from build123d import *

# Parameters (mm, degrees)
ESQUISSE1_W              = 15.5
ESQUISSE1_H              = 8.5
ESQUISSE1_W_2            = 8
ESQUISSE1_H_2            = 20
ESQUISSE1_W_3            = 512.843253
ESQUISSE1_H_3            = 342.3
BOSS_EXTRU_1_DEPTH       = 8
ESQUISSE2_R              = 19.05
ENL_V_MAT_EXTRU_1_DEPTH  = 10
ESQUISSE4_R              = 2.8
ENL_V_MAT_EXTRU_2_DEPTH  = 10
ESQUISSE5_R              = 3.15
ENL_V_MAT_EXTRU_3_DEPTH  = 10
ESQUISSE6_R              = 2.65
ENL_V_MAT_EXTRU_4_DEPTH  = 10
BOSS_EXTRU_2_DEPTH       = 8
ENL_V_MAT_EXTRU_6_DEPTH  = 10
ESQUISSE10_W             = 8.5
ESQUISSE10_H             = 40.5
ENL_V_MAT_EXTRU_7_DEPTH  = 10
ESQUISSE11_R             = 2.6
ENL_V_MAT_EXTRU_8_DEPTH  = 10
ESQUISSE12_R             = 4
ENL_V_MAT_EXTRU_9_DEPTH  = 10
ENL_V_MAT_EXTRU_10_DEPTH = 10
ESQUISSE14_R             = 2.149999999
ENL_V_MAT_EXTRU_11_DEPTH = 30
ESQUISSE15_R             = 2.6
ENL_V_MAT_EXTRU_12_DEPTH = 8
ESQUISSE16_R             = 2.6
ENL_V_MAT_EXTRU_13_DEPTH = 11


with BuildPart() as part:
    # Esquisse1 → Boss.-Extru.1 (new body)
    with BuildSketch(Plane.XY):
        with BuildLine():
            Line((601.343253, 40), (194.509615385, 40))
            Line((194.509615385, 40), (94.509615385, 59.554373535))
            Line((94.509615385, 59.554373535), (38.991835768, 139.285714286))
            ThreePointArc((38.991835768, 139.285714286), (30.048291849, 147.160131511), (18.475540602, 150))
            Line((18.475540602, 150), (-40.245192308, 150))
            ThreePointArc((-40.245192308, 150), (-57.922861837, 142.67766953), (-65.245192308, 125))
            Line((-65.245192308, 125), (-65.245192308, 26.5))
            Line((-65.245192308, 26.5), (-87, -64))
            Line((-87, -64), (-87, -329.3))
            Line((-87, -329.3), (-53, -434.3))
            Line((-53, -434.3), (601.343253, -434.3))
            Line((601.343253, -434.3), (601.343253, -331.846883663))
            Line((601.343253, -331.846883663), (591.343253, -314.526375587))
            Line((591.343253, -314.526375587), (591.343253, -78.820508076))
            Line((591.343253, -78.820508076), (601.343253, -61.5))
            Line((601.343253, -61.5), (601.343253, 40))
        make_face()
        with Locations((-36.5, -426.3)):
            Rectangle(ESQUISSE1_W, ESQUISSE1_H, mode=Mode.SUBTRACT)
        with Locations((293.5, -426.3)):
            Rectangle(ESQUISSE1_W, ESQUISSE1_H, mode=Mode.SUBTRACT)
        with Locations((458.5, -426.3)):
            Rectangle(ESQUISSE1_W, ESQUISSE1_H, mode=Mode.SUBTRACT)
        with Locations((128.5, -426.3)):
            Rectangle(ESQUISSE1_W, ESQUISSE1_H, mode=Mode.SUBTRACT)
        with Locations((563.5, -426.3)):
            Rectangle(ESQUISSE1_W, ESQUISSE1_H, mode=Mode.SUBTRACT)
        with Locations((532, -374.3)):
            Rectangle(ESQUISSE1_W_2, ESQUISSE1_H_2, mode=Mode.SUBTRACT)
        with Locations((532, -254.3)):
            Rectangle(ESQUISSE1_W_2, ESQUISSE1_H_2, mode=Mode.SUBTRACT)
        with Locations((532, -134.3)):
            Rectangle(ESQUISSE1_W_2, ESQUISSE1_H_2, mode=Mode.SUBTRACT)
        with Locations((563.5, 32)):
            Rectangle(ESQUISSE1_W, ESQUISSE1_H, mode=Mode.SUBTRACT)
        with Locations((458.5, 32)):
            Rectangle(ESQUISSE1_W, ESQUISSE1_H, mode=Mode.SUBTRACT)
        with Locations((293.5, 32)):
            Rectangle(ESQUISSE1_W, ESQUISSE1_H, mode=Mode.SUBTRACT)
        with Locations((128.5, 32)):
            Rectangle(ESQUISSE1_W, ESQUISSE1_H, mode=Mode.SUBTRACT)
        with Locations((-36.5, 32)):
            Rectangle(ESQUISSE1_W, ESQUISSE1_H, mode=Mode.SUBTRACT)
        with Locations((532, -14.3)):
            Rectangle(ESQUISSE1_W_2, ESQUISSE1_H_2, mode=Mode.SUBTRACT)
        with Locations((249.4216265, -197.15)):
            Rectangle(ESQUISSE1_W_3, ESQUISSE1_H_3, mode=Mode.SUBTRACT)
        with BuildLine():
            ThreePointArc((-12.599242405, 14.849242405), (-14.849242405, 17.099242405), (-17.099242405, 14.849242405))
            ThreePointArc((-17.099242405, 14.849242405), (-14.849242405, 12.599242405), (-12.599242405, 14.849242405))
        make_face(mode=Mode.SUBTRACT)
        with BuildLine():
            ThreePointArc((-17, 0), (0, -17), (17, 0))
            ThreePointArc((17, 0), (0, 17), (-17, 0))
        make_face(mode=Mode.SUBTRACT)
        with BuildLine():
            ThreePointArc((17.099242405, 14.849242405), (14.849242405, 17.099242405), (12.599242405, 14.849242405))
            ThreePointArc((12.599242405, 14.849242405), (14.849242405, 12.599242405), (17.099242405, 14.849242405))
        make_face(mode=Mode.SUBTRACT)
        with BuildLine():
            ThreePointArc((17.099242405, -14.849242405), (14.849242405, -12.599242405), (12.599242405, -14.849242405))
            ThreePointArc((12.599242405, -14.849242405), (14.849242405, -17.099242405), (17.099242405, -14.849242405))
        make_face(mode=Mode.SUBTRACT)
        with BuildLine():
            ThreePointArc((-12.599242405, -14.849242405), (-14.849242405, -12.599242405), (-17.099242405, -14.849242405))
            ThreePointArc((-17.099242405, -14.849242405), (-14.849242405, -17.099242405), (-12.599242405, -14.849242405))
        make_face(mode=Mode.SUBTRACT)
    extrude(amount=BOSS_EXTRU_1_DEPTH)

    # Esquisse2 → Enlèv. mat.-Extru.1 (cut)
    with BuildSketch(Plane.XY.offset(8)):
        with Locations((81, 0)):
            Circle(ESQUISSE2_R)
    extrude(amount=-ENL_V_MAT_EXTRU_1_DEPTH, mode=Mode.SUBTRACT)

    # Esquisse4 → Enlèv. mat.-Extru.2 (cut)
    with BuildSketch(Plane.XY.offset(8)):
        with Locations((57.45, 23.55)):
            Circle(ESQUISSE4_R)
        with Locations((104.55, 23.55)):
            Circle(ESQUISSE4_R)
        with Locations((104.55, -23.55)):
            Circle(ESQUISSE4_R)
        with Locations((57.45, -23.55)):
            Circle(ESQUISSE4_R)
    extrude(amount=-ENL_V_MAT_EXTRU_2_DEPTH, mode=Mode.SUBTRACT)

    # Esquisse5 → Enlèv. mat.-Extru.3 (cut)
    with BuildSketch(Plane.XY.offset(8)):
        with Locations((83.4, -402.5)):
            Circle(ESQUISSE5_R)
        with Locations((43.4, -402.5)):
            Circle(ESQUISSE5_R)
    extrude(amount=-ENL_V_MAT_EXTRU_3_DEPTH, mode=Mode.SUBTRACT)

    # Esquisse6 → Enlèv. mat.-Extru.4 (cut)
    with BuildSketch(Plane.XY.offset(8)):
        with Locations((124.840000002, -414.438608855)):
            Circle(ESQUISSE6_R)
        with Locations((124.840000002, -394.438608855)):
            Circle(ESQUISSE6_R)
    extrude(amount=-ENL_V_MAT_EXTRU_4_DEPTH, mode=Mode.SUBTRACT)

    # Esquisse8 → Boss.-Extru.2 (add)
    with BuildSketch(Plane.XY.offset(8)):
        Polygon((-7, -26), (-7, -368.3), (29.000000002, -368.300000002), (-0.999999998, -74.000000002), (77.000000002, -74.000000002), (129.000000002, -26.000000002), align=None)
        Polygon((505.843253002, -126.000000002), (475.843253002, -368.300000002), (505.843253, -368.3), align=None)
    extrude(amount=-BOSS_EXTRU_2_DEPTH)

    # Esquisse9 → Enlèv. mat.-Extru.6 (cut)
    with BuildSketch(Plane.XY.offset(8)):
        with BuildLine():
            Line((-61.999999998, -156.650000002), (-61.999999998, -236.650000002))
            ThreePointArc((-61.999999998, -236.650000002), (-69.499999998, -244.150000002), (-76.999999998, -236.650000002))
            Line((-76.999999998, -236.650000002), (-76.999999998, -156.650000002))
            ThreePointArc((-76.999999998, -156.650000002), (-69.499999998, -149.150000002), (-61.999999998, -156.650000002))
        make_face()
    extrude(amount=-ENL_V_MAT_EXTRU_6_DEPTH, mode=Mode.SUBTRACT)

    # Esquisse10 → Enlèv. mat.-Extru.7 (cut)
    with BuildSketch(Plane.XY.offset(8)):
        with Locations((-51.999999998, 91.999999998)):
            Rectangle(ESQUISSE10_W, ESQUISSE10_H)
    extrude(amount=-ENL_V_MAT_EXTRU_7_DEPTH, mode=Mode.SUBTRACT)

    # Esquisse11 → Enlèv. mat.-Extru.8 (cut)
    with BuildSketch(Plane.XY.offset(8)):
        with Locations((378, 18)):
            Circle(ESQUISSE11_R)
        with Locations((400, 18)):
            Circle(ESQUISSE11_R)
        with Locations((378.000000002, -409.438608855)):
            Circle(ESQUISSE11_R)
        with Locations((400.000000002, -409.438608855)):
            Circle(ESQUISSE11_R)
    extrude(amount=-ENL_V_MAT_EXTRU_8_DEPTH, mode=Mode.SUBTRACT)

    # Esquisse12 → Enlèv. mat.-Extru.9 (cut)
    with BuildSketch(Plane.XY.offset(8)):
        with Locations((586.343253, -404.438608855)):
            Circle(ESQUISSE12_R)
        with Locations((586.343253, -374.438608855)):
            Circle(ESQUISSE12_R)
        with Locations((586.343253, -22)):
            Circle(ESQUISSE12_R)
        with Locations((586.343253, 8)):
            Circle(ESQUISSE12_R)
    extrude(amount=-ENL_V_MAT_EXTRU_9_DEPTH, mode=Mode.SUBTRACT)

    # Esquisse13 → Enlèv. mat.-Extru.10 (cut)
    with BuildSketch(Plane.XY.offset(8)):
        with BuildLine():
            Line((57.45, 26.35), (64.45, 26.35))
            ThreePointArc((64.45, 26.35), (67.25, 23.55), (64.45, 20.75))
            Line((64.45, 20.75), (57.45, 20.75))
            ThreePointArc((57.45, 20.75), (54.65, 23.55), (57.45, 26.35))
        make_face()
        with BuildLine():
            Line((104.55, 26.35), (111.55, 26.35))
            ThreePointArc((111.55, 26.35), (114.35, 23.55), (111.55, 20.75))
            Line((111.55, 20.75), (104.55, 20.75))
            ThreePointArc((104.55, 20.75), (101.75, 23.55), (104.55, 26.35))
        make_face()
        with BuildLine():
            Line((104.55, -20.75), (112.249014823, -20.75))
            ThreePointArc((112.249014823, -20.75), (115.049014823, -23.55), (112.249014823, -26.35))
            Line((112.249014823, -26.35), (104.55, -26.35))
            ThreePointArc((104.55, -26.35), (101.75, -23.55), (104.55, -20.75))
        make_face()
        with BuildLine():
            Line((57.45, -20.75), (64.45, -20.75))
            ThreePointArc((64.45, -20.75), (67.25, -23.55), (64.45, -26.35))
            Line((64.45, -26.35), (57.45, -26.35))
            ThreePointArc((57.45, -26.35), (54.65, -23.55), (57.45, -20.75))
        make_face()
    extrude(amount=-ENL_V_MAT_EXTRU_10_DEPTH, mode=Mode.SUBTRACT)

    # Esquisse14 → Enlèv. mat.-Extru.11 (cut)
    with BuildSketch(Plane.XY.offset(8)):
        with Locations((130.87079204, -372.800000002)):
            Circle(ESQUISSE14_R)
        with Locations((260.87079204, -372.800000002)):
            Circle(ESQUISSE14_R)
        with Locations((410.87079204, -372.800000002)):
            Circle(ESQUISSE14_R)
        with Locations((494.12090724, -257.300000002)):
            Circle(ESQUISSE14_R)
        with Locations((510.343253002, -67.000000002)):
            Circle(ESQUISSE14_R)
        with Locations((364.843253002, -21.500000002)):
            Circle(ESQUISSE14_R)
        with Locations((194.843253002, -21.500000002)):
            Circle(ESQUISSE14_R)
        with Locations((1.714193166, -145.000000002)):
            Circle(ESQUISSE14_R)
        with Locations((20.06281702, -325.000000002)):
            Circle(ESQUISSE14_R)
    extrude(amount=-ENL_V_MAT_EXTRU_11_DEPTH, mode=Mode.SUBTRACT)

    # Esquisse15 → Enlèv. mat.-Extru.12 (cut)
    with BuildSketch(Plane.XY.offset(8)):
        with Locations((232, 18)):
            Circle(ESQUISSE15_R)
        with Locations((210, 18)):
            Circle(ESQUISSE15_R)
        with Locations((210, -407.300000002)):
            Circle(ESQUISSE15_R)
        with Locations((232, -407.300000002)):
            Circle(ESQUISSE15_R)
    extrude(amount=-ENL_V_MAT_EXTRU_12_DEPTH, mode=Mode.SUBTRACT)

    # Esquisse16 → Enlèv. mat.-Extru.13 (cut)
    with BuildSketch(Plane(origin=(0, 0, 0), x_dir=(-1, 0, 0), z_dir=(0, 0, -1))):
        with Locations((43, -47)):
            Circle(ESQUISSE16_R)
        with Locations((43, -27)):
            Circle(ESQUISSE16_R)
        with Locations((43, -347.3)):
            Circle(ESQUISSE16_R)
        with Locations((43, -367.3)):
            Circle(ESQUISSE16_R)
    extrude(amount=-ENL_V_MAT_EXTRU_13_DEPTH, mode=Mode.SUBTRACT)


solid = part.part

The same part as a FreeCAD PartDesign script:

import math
import FreeCAD as App
import Part
import Sketcher
from FreeCAD import Vector
Q = App.Units.Quantity


def add_polygon(sketch, points):
    """Adds a closed chain of lines whose ends are joined by coincident constraints."""
    first, n = sketch.GeometryCount, len(points)
    for a, b in zip(points, points[1:] + points[:1]):
        sketch.addGeometry(Part.LineSegment(App.Vector(*a, 0), App.Vector(*b, 0)), False)
    for i in range(n):
        sketch.addConstraint(Sketcher.Constraint("Coincident", first + i, 2, first + (i + 1) % n, 1))

doc = App.newDocument("Part")
body = doc.addObject("PartDesign::Body", "Body")

sketch1 = doc.addObject("Sketcher::SketchObject", "Sketch")
body.addObject(sketch1)
sketch1.AttachmentSupport = (doc.XY_Plane, [""])
sketch1.MapMode = "FlatFace"
sketch1.addGeometry(Part.LineSegment(Vector(601.343253, 40, 0), Vector(194.509615, 40, 0)), False)
sketch1.addGeometry(Part.LineSegment(Vector(194.509615, 40, 0), Vector(94.509615, 59.554374, 0)), False)
sketch1.addGeometry(Part.LineSegment(Vector(94.509615, 59.554374, 0), Vector(38.991836, 139.285714, 0)), False)
sketch1.addGeometry(Part.ArcOfCircle(Part.Circle(Vector(18.475541, 125, 0), Vector(0, 0, 1), 25), math.radians(34.849905), math.radians(90)), False)
sketch1.addGeometry(Part.LineSegment(Vector(18.475541, 150, 0), Vector(-40.245192, 150, 0)), False)
sketch1.addGeometry(Part.ArcOfCircle(Part.Circle(Vector(-40.245192, 125, 0), Vector(0, 0, 1), 25), math.radians(90), math.radians(180)), False)
sketch1.addGeometry(Part.LineSegment(Vector(-65.245192, 125, 0), Vector(-65.245192, 26.5, 0)), False)
sketch1.addGeometry(Part.LineSegment(Vector(-65.245192, 26.5, 0), Vector(-87, -64, 0)), False)
sketch1.addGeometry(Part.LineSegment(Vector(-87, -64, 0), Vector(-87, -329.3, 0)), False)
sketch1.addGeometry(Part.LineSegment(Vector(-87, -329.3, 0), Vector(-53, -434.3, 0)), False)
sketch1.addGeometry(Part.LineSegment(Vector(-53, -434.3, 0), Vector(601.343253, -434.3, 0)), False)
sketch1.addGeometry(Part.LineSegment(Vector(601.343253, -434.3, 0), Vector(601.343253, -331.846884, 0)), False)
sketch1.addGeometry(Part.LineSegment(Vector(601.343253, -331.846884, 0), Vector(591.343253, -314.526376, 0)), False)
sketch1.addGeometry(Part.LineSegment(Vector(591.343253, -314.526376, 0), Vector(591.343253, -78.820508, 0)), False)
sketch1.addGeometry(Part.LineSegment(Vector(591.343253, -78.820508, 0), Vector(601.343253, -61.5, 0)), False)
sketch1.addGeometry(Part.LineSegment(Vector(601.343253, -61.5, 0), Vector(601.343253, 40, 0)), False)
add_polygon(sketch1, [(-28.75, -430.55), (-44.25, -430.55), (-44.25, -422.05), (-28.75, -422.05)])
add_polygon(sketch1, [(136.25, -430.55), (120.75, -430.55), (120.75, -422.05), (136.25, -422.05)])
add_polygon(sketch1, [(301.25, -430.55), (285.75, -430.55), (285.75, -422.05), (301.25, -422.05)])
add_polygon(sketch1, [(466.25, -430.55), (450.75, -430.55), (450.75, -422.05), (466.25, -422.05)])
add_polygon(sketch1, [(571.25, -430.55), (555.75, -430.55), (555.75, -422.05), (571.25, -422.05)])
add_polygon(sketch1, [(536, -384.3), (528, -384.3), (528, -364.3), (536, -364.3)])
add_polygon(sketch1, [(536, -264.3), (528, -264.3), (528, -244.3), (536, -244.3)])
add_polygon(sketch1, [(505.843253, -368.3), (-7, -368.3), (-7, -26), (505.843253, -26)])
sketch1.addGeometry(Part.Circle(Vector(-14.849242, -14.849242, 0), Vector(0, 0, 1), 2.25), False)
sketch1.addGeometry(Part.Circle(Vector(14.849242, -14.849242, 0), Vector(0, 0, 1), 2.25), False)
sketch1.addGeometry(Part.Circle(Vector(0, 0, 0), Vector(0, 0, 1), 17), False)
sketch1.addGeometry(Part.Circle(Vector(-14.849242, 14.849242, 0), Vector(0, 0, 1), 2.25), False)
add_polygon(sketch1, [(-28.75, 27.75), (-44.25, 27.75), (-44.25, 36.25), (-28.75, 36.25)])
sketch1.addGeometry(Part.Circle(Vector(14.849242, 14.849242, 0), Vector(0, 0, 1), 2.25), False)
add_polygon(sketch1, [(136.25, 27.75), (120.75, 27.75), (120.75, 36.25), (136.25, 36.25)])
add_polygon(sketch1, [(536, -144.3), (528, -144.3), (528, -124.3), (536, -124.3)])
add_polygon(sketch1, [(301.25, 27.75), (285.75, 27.75), (285.75, 36.25), (301.25, 36.25)])
add_polygon(sketch1, [(466.25, 27.75), (450.75, 27.75), (450.75, 36.25), (466.25, 36.25)])
add_polygon(sketch1, [(536, -24.3), (528, -24.3), (528, -4.3), (536, -4.3)])
add_polygon(sketch1, [(571.25, 27.75), (555.75, 27.75), (555.75, 36.25), (571.25, 36.25)])
sketch1.addConstraint([
    Sketcher.Constraint("Coincident", 0, 2, 1, 1),
    Sketcher.Constraint("Coincident", 1, 2, 2, 1),
    Sketcher.Constraint("Tangent", 2, 2, 3, 1),
    Sketcher.Constraint("Tangent", 3, 2, 4, 1),
    Sketcher.Constraint("Tangent", 4, 2, 5, 1),
    Sketcher.Constraint("Tangent", 5, 2, 6, 1),
    Sketcher.Constraint("Coincident", 6, 2, 7, 1),
    Sketcher.Constraint("Coincident", 7, 2, 8, 1),
    Sketcher.Constraint("Coincident", 8, 2, 9, 1),
    Sketcher.Constraint("Coincident", 9, 2, 10, 1),
    Sketcher.Constraint("Coincident", 10, 2, 11, 1),
    Sketcher.Constraint("Coincident", 11, 2, 12, 1),
    Sketcher.Constraint("Coincident", 12, 2, 13, 1),
    Sketcher.Constraint("Coincident", 13, 2, 14, 1),
    Sketcher.Constraint("Coincident", 14, 2, 15, 1),
    Sketcher.Constraint("Coincident", 15, 2, 0, 1),
    Sketcher.Constraint("Horizontal", 0),
    Sketcher.Constraint("Horizontal", 4),
    Sketcher.Constraint("Vertical", 6),
    Sketcher.Constraint("Vertical", 8),
    Sketcher.Constraint("Horizontal", 10),
    Sketcher.Constraint("Vertical", 11),
    Sketcher.Constraint("Vertical", 13),
    Sketcher.Constraint("Vertical", 15),
    Sketcher.Constraint("Horizontal", 16),
    Sketcher.Constraint("Vertical", 17),
    Sketcher.Constraint("Horizontal", 18),
    Sketcher.Constraint("Vertical", 19),
    Sketcher.Constraint("Horizontal", 20),
    Sketcher.Constraint("Vertical", 21),
    Sketcher.Constraint("Horizontal", 22),
    Sketcher.Constraint("Vertical", 23),
    Sketcher.Constraint("Horizontal", 24),
    Sketcher.Constraint("Vertical", 25),
    Sketcher.Constraint("Horizontal", 26),
    Sketcher.Constraint("Vertical", 27),
    Sketcher.Constraint("Horizontal", 28),
    Sketcher.Constraint("Vertical", 29),
    Sketcher.Constraint("Horizontal", 30),
    Sketcher.Constraint("Vertical", 31),
    Sketcher.Constraint("Horizontal", 32),
    Sketcher.Constraint("Vertical", 33),
    Sketcher.Constraint("Horizontal", 34),
    Sketcher.Constraint("Vertical", 35),
    Sketcher.Constraint("Horizontal", 36),
    Sketcher.Constraint("Vertical", 37),
    Sketcher.Constraint("Horizontal", 38),
    Sketcher.Constraint("Vertical", 39),
    Sketcher.Constraint("Horizontal", 40),
    Sketcher.Constraint("Vertical", 41),
    Sketcher.Constraint("Horizontal", 42),
    Sketcher.Constraint("Vertical", 43),
    Sketcher.Constraint("Horizontal", 44),
    Sketcher.Constraint("Vertical", 45),
    Sketcher.Constraint("Horizontal", 46),
    Sketcher.Constraint("Vertical", 47),
    Sketcher.Constraint("Horizontal", 52),
    Sketcher.Constraint("Vertical", 53),
    Sketcher.Constraint("Horizontal", 54),
    Sketcher.Constraint("Vertical", 55),
    Sketcher.Constraint("Horizontal", 57),
    Sketcher.Constraint("Vertical", 58),
    Sketcher.Constraint("Horizontal", 59),
    Sketcher.Constraint("Vertical", 60),
    Sketcher.Constraint("Horizontal", 61),
    Sketcher.Constraint("Vertical", 62),
    Sketcher.Constraint("Horizontal", 63),
    Sketcher.Constraint("Vertical", 64),
    Sketcher.Constraint("Horizontal", 65),
    Sketcher.Constraint("Vertical", 66),
    Sketcher.Constraint("Horizontal", 67),
    Sketcher.Constraint("Vertical", 68),
    Sketcher.Constraint("Horizontal", 69),
    Sketcher.Constraint("Vertical", 70),
    Sketcher.Constraint("Horizontal", 71),
    Sketcher.Constraint("Vertical", 72),
    Sketcher.Constraint("Horizontal", 73),
    Sketcher.Constraint("Vertical", 74),
    Sketcher.Constraint("Horizontal", 75),
    Sketcher.Constraint("Vertical", 76),
    Sketcher.Constraint("Horizontal", 77),
    Sketcher.Constraint("Vertical", 78),
    Sketcher.Constraint("Horizontal", 79),
    Sketcher.Constraint("Vertical", 80),
    Sketcher.Constraint("Coincident", 50, 3, -1, 1),
    Sketcher.Constraint("Equal", 3, 5),
    Sketcher.Constraint("Equal", 48, 49),
    Sketcher.Constraint("Equal", 49, 51),
    Sketcher.Constraint("Equal", 51, 56),
    Sketcher.Constraint("Symmetric", 49, 3, 51, 3, -1, 1),
    Sketcher.Constraint("Symmetric", 48, 3, 56, 3, -1, 1),
    Sketcher.Constraint("Symmetric", 48, 3, 49, 3, -2),
    Sketcher.Constraint("Horizontal", 19, 2, 20, 2),
    Sketcher.Constraint("Horizontal", 18, 2, 21, 2),
    Sketcher.Constraint("Horizontal", 23, 2, 24, 2),
    Sketcher.Constraint("Horizontal", 22, 2, 25, 2),
    Sketcher.Constraint("Horizontal", 27, 2, 28, 2),
    Sketcher.Constraint("Horizontal", 26, 2, 29, 2),
    Sketcher.Constraint("Horizontal", 31, 2, 32, 2),
    Sketcher.Constraint("Horizontal", 30, 2, 33, 2),
    Sketcher.Constraint("Horizontal", 55, 2, 57, 2),
    Sketcher.Constraint("Horizontal", 54, 2, 58, 2),
    Sketcher.Constraint("Horizontal", 60, 2, 65, 2),
    Sketcher.Constraint("Horizontal", 59, 2, 66, 2),
    Sketcher.Constraint("Horizontal", 68, 2, 69, 2),
    Sketcher.Constraint("Horizontal", 67, 2, 70, 2),
    Sketcher.Constraint("Horizontal", 72, 2, 77, 2),
    Sketcher.Constraint("Horizontal", 71, 2, 78, 2),
    Sketcher.Constraint("Vertical", 11, 2, 14, 2),
    Sketcher.Constraint("Vertical", 37, 2, 40, 2),
    Sketcher.Constraint("Vertical", 39, 2, 42, 2),
    Sketcher.Constraint("Vertical", 17, 2, 52, 2),
    Sketcher.Constraint("Vertical", 19, 2, 54, 2),
    Sketcher.Constraint("Vertical", 21, 2, 57, 2),
    Sketcher.Constraint("Vertical", 23, 2, 59, 2),
    Sketcher.Constraint("Vertical", 41, 2, 61, 2),
    Sketcher.Constraint("Vertical", 43, 2, 63, 2),
    Sketcher.Constraint("Vertical", 25, 2, 65, 2),
    Sketcher.Constraint("Vertical", 27, 2, 67, 2),
    Sketcher.Constraint("Vertical", 29, 2, 69, 2),
    Sketcher.Constraint("Vertical", 31, 2, 71, 2),
    Sketcher.Constraint("Vertical", 62, 2, 73, 2),
    Sketcher.Constraint("Vertical", 64, 2, 75, 2),
    Sketcher.Constraint("Vertical", 33, 2, 77, 2),
    Sketcher.Constraint("Vertical", 35, 2, 79, 2),
    Sketcher.Constraint("Equal", 18, 20),
    Sketcher.Constraint("Equal", 22, 24),
    Sketcher.Constraint("Equal", 26, 28),
    Sketcher.Constraint("Equal", 30, 32),
    Sketcher.Constraint("Equal", 39, 41),
    Sketcher.Constraint("Equal", 35, 53),
    Sketcher.Constraint("Equal", 43, 62),
    Sketcher.Constraint("Equal", 64, 74),
    Sketcher.Constraint("Equal", 12, 14),
    Sketcher.Constraint("Diameter", 50, 34.0),
    Sketcher.Constraint("Radius", 3, 25.0),
    Sketcher.Constraint("Diameter", 48, 4.5),
    Sketcher.Constraint("DistanceX", 36, 2, 36, 1, 8.0),
    Sketcher.Constraint("DistanceY", 37, 1, 37, 2, 20.0),
    Sketcher.Constraint("Angle", 12, Q("120 deg")),
    Sketcher.Constraint("Distance", 12, 20.0),
    Sketcher.Constraint("DistanceX", 16, 2, 16, 1, 15.5),
    Sketcher.Constraint("DistanceY", 6, 2, 6, 1, 98.5),
    Sketcher.Constraint("DistanceY", 8, 2, 8, 1, 265.3),
    Sketcher.Constraint("DistanceY", 15, 1, 15, 2, 101.5),
    Sketcher.Constraint("DistanceY", 17, 1, 17, 2, 8.5),
    Sketcher.Constraint("DistanceY", 45, 1, 45, 2, 342.3),
    Sketcher.Constraint("DistanceY", -1, 1, 3, 3, 125.0),
    Sketcher.Constraint("DistanceY", -1, 1, 0, 2, 40.0),
    Sketcher.Constraint("DistanceX", 7, 2, -1, 1, 87.0),
    Sketcher.Constraint("DistanceY", 7, 2, -1, 1, 64.0),
    Sketcher.Constraint("DistanceX", 9, 2, -1, 1, 53.0),
    Sketcher.Constraint("DistanceX", -1, 1, 36, 2, 528.0),
    Sketcher.Constraint("DistanceX", 44, 2, -1, 1, 7.0),
    Sketcher.Constraint("DistanceY", 45, 2, -1, 1, 26.0),
    Sketcher.Constraint("DistanceY", 9, 2, -1, 1, 434.3),
    Sketcher.Constraint("DistanceY", 36, 2, -1, 1, 384.3),
    Sketcher.Constraint("DistanceY", 40, 2, -1, 1, 264.3),
    Sketcher.Constraint("DistanceY", 61, 2, -1, 1, 144.3),
    Sketcher.Constraint("DistanceY", 73, 2, -1, 1, 24.3),
    Sketcher.Constraint("DistanceX", 16, 2, -1, 1, 44.25),
    Sketcher.Constraint("DistanceY", 16, 2, -1, 1, 430.55),
    Sketcher.Constraint("DistanceX", -1, 1, 20, 2, 120.75),
    Sketcher.Constraint("DistanceX", -1, 1, 24, 2, 285.75),
    Sketcher.Constraint("DistanceX", -1, 1, 28, 2, 450.75),
    Sketcher.Constraint("DistanceX", -1, 1, 32, 2, 555.75),
    Sketcher.Constraint("DistanceY", -1, 1, 52, 2, 27.75),
    Sketcher.Constraint("Distance", 7, 93.078041),
    Sketcher.Constraint("DistanceX", 0, 2, 0, 1, 406.833638),
    Sketcher.Constraint("DistanceX", 4, 2, 4, 1, 58.720733),
    Sketcher.Constraint("DistanceX", 10, 1, 10, 2, 654.343253),
    Sketcher.Constraint("DistanceX", 44, 2, 44, 1, 512.843253),
    Sketcher.Constraint("DistanceY", 11, 1, 11, 2, 102.453116),
    Sketcher.Constraint("Distance", 1, 101.893933),
    Sketcher.Constraint("Distance", 2, 97.156114),
    Sketcher.Constraint("DistanceX", 48, 3, -1, 1, 14.849242),
    Sketcher.Constraint("DistanceY", 48, 3, -1, 1, 14.849242),
])
pad1 = doc.addObject("PartDesign::Pad", "Pad")
body.addObject(pad1)
pad1.Profile = sketch1
pad1.Length = 8

sketch2 = doc.addObject("Sketcher::SketchObject", "Sketch001")
body.addObject(sketch2)
sketch2.AttachmentSupport = (doc.XY_Plane, [""])
sketch2.MapMode = "FlatFace"
sketch2.AttachmentOffset = App.Placement(Vector(0, 0, 8), App.Rotation())
sketch2.addGeometry(Part.Circle(Vector(81, 0, 0), Vector(0, 0, 1), 19.05), False)
sketch2.addConstraint([
    Sketcher.Constraint("PointOnObject", 0, 3, -1),
    Sketcher.Constraint("Diameter", 0, 38.1),
    Sketcher.Constraint("DistanceX", -1, 1, 0, 3, 81.0),
])
pocket1 = doc.addObject("PartDesign::Pocket", "Pocket")
body.addObject(pocket1)
pocket1.Profile = sketch2
pocket1.Length = 10

sketch3 = doc.addObject("Sketcher::SketchObject", "Sketch002")
body.addObject(sketch3)
sketch3.AttachmentSupport = (doc.XY_Plane, [""])
sketch3.MapMode = "FlatFace"
sketch3.AttachmentOffset = App.Placement(Vector(0, 0, 8), App.Rotation())
sketch3.addGeometry([
    Part.Circle(Vector(57.45, 23.55, 0), Vector(0, 0, 1), 2.8),
    Part.Circle(Vector(104.55, 23.55, 0), Vector(0, 0, 1), 2.8),
    Part.Circle(Vector(104.55, -23.55, 0), Vector(0, 0, 1), 2.8),
    Part.Circle(Vector(57.45, -23.55, 0), Vector(0, 0, 1), 2.8),
], False)
sketch3.addConstraint([
    Sketcher.Constraint("Equal", 0, 1),
    Sketcher.Constraint("Equal", 1, 2),
    Sketcher.Constraint("Equal", 2, 3),
    Sketcher.Constraint("Symmetric", 1, 3, 2, 3, -1),
    Sketcher.Constraint("Symmetric", 0, 3, 3, 3, -1),
    Sketcher.Constraint("Horizontal", 0, 3, 1, 3),
    Sketcher.Constraint("Diameter", 0, 5.6),
    Sketcher.Constraint("DistanceX", 0, 3, 1, 3, 47.1),
    Sketcher.Constraint("DistanceY", 2, 3, 1, 3, 47.1),
    Sketcher.Constraint("DistanceX", -1, 1, 0, 3, 57.45),
])
pocket2 = doc.addObject("PartDesign::Pocket", "Pocket001")
body.addObject(pocket2)
pocket2.Profile = sketch3
pocket2.Length = 10

sketch4 = doc.addObject("Sketcher::SketchObject", "Sketch003")
body.addObject(sketch4)
sketch4.AttachmentSupport = (doc.XY_Plane, [""])
sketch4.MapMode = "FlatFace"
sketch4.AttachmentOffset = App.Placement(Vector(0, 0, 8), App.Rotation())
sketch4.addGeometry([
    Part.Circle(Vector(83.4, -402.5, 0), Vector(0, 0, 1), 3.15),
    Part.Circle(Vector(43.4, -402.5, 0), Vector(0, 0, 1), 3.15),
], False)
sketch4.addConstraint([
    Sketcher.Constraint("Equal", 0, 1),
    Sketcher.Constraint("Horizontal", 0, 3, 1, 3),
    Sketcher.Constraint("Diameter", 0, 6.3),
    Sketcher.Constraint("DistanceX", 1, 3, 0, 3, 40.0),
    Sketcher.Constraint("DistanceX", -1, 1, 0, 3, 83.4),
    Sketcher.Constraint("DistanceY", 0, 3, -1, 1, 402.5),
])
pocket3 = doc.addObject("PartDesign::Pocket", "Pocket002")
body.addObject(pocket3)
pocket3.Profile = sketch4
pocket3.Length = 10

sketch5 = doc.addObject("Sketcher::SketchObject", "Sketch004")
body.addObject(sketch5)
sketch5.AttachmentSupport = (doc.XY_Plane, [""])
sketch5.MapMode = "FlatFace"
sketch5.AttachmentOffset = App.Placement(Vector(0, 0, 8), App.Rotation())
sketch5.addGeometry([
    Part.Circle(Vector(124.84, -414.438609, 0), Vector(0, 0, 1), 2.65),
    Part.Circle(Vector(124.84, -394.438609, 0), Vector(0, 0, 1), 2.65),
], False)
sketch5.addConstraint([
    Sketcher.Constraint("Equal", 0, 1),
    Sketcher.Constraint("Vertical", 0, 3, 1, 3),
    Sketcher.Constraint("Diameter", 0, 5.3),
    Sketcher.Constraint("DistanceY", 0, 3, 1, 3, 20.0),
    Sketcher.Constraint("DistanceX", -1, 1, 0, 3, 124.84),
    Sketcher.Constraint("DistanceY", 0, 3, -1, 1, 414.438609),
])
pocket4 = doc.addObject("PartDesign::Pocket", "Pocket003")
body.addObject(pocket4)
pocket4.Profile = sketch5
pocket4.Length = 10

sketch6 = doc.addObject("Sketcher::SketchObject", "Sketch005")
body.addObject(sketch6)
sketch6.AttachmentSupport = (doc.XY_Plane, [""])
sketch6.MapMode = "FlatFace"
sketch6.AttachmentOffset = App.Placement(Vector(0, 0, 8), App.Rotation())
add_polygon(sketch6, [(-7, -26), (-7, -368.3), (29, -368.3), (-1, -74), (77, -74), (129, -26)])
add_polygon(sketch6, [(505.843253, -126), (475.843253, -368.3), (505.843253, -368.3)])
sketch6.addConstraint([
    Sketcher.Constraint("Vertical", 0),
    Sketcher.Constraint("Horizontal", 1),
    Sketcher.Constraint("Horizontal", 3),
    Sketcher.Constraint("Horizontal", 5),
    Sketcher.Constraint("Horizontal", 7),
    Sketcher.Constraint("Vertical", 8),
    Sketcher.Constraint("Horizontal", 1, 2, 6, 2),
    Sketcher.Constraint("DistanceX", 1, 1, 1, 2, 36.0),
    Sketcher.Constraint("DistanceX", 3, 1, 3, 2, 78.0),
    Sketcher.Constraint("DistanceX", 5, 2, 5, 1, 136.0),
    Sketcher.Constraint("DistanceX", 7, 1, 7, 2, 30.0),
    Sketcher.Constraint("DistanceY", 0, 2, 0, 1, 342.3),
    Sketcher.Constraint("DistanceY", 8, 1, 8, 2, 242.3),
    Sketcher.Constraint("DistanceX", 0, 2, -1, 1, 7.0),
    Sketcher.Constraint("DistanceX", 2, 2, -1, 1, 1.0),
    Sketcher.Constraint("DistanceY", 2, 2, -1, 1, 74.0),
    Sketcher.Constraint("DistanceY", 4, 2, -1, 1, 26.0),
    Sketcher.Constraint("DistanceX", -1, 1, 6, 2, 475.843253),
])
pad2 = doc.addObject("PartDesign::Pad", "Pad001")
body.addObject(pad2)
pad2.Profile = sketch6
pad2.Length = 8
pad2.Reversed = True

sketch7 = doc.addObject("Sketcher::SketchObject", "Sketch006")
body.addObject(sketch7)
sketch7.AttachmentSupport = (doc.XY_Plane, [""])
sketch7.MapMode = "FlatFace"
sketch7.AttachmentOffset = App.Placement(Vector(0, 0, 8), App.Rotation())
sketch7.addGeometry([
    Part.LineSegment(Vector(-62, -236.65, 0), Vector(-62, -156.65, 0)),
    Part.ArcOfCircle(Part.Circle(Vector(-69.5, -156.65, 0), Vector(0, 0, 1), 7.5), math.radians(0), math.radians(180)),
    Part.LineSegment(Vector(-77, -156.65, 0), Vector(-77, -236.65, 0)),
    Part.ArcOfCircle(Part.Circle(Vector(-69.5, -236.65, 0), Vector(0, 0, 1), 7.5), math.radians(180), math.radians(360)),
], False)
sketch7.addConstraint([
    Sketcher.Constraint("Tangent", 0, 2, 1, 1),
    Sketcher.Constraint("Tangent", 1, 2, 2, 1),
    Sketcher.Constraint("Tangent", 2, 2, 3, 1),
    Sketcher.Constraint("Tangent", 3, 2, 0, 1),
    Sketcher.Constraint("Vertical", 0),
    Sketcher.Constraint("Vertical", 2),
    Sketcher.Constraint("Radius", 1, 7.5),
    Sketcher.Constraint("DistanceY", 0, 1, 0, 2, 80.0),
    Sketcher.Constraint("DistanceX", 0, 2, -1, 1, 62.0),
    Sketcher.Constraint("DistanceY", 1, 3, -1, 1, 156.65),
])
pocket5 = doc.addObject("PartDesign::Pocket", "Pocket004")
body.addObject(pocket5)
pocket5.Profile = sketch7
pocket5.Length = 10

sketch8 = doc.addObject("Sketcher::SketchObject", "Sketch007")
body.addObject(sketch8)
sketch8.AttachmentSupport = (doc.XY_Plane, [""])
sketch8.MapMode = "FlatFace"
sketch8.AttachmentOffset = App.Placement(Vector(0, 0, 8), App.Rotation())
add_polygon(sketch8, [(-56.25, 112.25), (-56.25, 71.75), (-47.75, 71.75), (-47.75, 112.25)])
sketch8.addConstraint([
    Sketcher.Constraint("Vertical", 0),
    Sketcher.Constraint("Horizontal", 1),
    Sketcher.Constraint("Vertical", 2),
    Sketcher.Constraint("Horizontal", 3),
    Sketcher.Constraint("DistanceX", 1, 1, 1, 2, 8.5),
    Sketcher.Constraint("DistanceY", 0, 2, 0, 1, 40.5),
    Sketcher.Constraint("DistanceX", 0, 2, -1, 1, 56.25),
    Sketcher.Constraint("DistanceY", -1, 1, 0, 2, 71.75),
])
pocket6 = doc.addObject("PartDesign::Pocket", "Pocket005")
body.addObject(pocket6)
pocket6.Profile = sketch8
pocket6.Length = 10

sketch9 = doc.addObject("Sketcher::SketchObject", "Sketch008")
body.addObject(sketch9)
sketch9.AttachmentSupport = (doc.XY_Plane, [""])
sketch9.MapMode = "FlatFace"
sketch9.AttachmentOffset = App.Placement(Vector(0, 0, 8), App.Rotation())
sketch9.addGeometry([
    Part.Circle(Vector(378, 18, 0), Vector(0, 0, 1), 2.6),
    Part.Circle(Vector(400, 18, 0), Vector(0, 0, 1), 2.6),
    Part.Circle(Vector(378, -409.438609, 0), Vector(0, 0, 1), 2.6),
    Part.Circle(Vector(400, -409.438609, 0), Vector(0, 0, 1), 2.6),
], False)
sketch9.addConstraint([
    Sketcher.Constraint("Equal", 0, 1),
    Sketcher.Constraint("Equal", 1, 2),
    Sketcher.Constraint("Equal", 2, 3),
    Sketcher.Constraint("Horizontal", 0, 3, 1, 3),
    Sketcher.Constraint("Horizontal", 2, 3, 3, 3),
    Sketcher.Constraint("Vertical", 0, 3, 2, 3),
    Sketcher.Constraint("Vertical", 1, 3, 3, 3),
    Sketcher.Constraint("Diameter", 0, 5.2),
    Sketcher.Constraint("DistanceX", -1, 1, 0, 3, 378.0),
    Sketcher.Constraint("DistanceY", -1, 1, 0, 3, 18.0),
    Sketcher.Constraint("DistanceX", -1, 1, 1, 3, 400.0),
    Sketcher.Constraint("DistanceY", 2, 3, -1, 1, 409.438609),
])
pocket7 = doc.addObject("PartDesign::Pocket", "Pocket006")
body.addObject(pocket7)
pocket7.Profile = sketch9
pocket7.Length = 10

sketch10 = doc.addObject("Sketcher::SketchObject", "Sketch009")
body.addObject(sketch10)
sketch10.AttachmentSupport = (doc.XY_Plane, [""])
sketch10.MapMode = "FlatFace"
sketch10.AttachmentOffset = App.Placement(Vector(0, 0, 8), App.Rotation())
sketch10.addGeometry([
    Part.Circle(Vector(586.343253, -404.438609, 0), Vector(0, 0, 1), 4),
    Part.Circle(Vector(586.343253, -374.438609, 0), Vector(0, 0, 1), 4),
    Part.Circle(Vector(586.343253, -22, 0), Vector(0, 0, 1), 4),
    Part.Circle(Vector(586.343253, 8, 0), Vector(0, 0, 1), 4),
], False)
sketch10.addConstraint([
    Sketcher.Constraint("Equal", 0, 1),
    Sketcher.Constraint("Equal", 1, 2),
    Sketcher.Constraint("Equal", 2, 3),
    Sketcher.Constraint("Vertical", 0, 3, 1, 3),
    Sketcher.Constraint("Vertical", 1, 3, 2, 3),
    Sketcher.Constraint("Vertical", 2, 3, 3, 3),
    Sketcher.Constraint("Diameter", 0, 8.0),
    Sketcher.Constraint("DistanceY", 2, 3, -1, 1, 22.0),
    Sketcher.Constraint("DistanceY", -1, 1, 3, 3, 8.0),
    Sketcher.Constraint("DistanceY", 0, 3, 1, 3, 30.0),
    Sketcher.Constraint("DistanceY", 0, 3, -1, 1, 404.438609),
    Sketcher.Constraint("DistanceX", -1, 1, 0, 3, 586.343253),
])
pocket8 = doc.addObject("PartDesign::Pocket", "Pocket007")
body.addObject(pocket8)
pocket8.Profile = sketch10
pocket8.Length = 10

sketch11 = doc.addObject("Sketcher::SketchObject", "Sketch010")
body.addObject(sketch11)
sketch11.AttachmentSupport = (doc.XY_Plane, [""])
sketch11.MapMode = "FlatFace"
sketch11.AttachmentOffset = App.Placement(Vector(0, 0, 8), App.Rotation())
sketch11.addGeometry([
    Part.LineSegment(Vector(64.45, 26.35, 0), Vector(57.45, 26.35, 0)),
    Part.ArcOfCircle(Part.Circle(Vector(57.45, 23.55, 0), Vector(0, 0, 1), 2.8), math.radians(90), math.radians(270)),
    Part.LineSegment(Vector(57.45, 20.75, 0), Vector(64.45, 20.75, 0)),
    Part.ArcOfCircle(Part.Circle(Vector(64.45, 23.55, 0), Vector(0, 0, 1), 2.8), math.radians(-90), math.radians(90)),
    Part.LineSegment(Vector(111.55, 26.35, 0), Vector(104.55, 26.35, 0)),
    Part.ArcOfCircle(Part.Circle(Vector(104.55, 23.55, 0), Vector(0, 0, 1), 2.8), math.radians(90), math.radians(270)),
    Part.LineSegment(Vector(104.55, 20.75, 0), Vector(111.55, 20.75, 0)),
    Part.ArcOfCircle(Part.Circle(Vector(111.55, 23.55, 0), Vector(0, 0, 1), 2.8), math.radians(-90), math.radians(90)),
    Part.LineSegment(Vector(112.249015, -20.75, 0), Vector(104.55, -20.75, 0)),
    Part.ArcOfCircle(Part.Circle(Vector(104.55, -23.55, 0), Vector(0, 0, 1), 2.8), math.radians(90), math.radians(270)),
    Part.LineSegment(Vector(104.55, -26.35, 0), Vector(112.249015, -26.35, 0)),
    Part.ArcOfCircle(Part.Circle(Vector(112.249015, -23.55, 0), Vector(0, 0, 1), 2.8), math.radians(-90), math.radians(90)),
    Part.LineSegment(Vector(64.45, -20.75, 0), Vector(57.45, -20.75, 0)),
    Part.ArcOfCircle(Part.Circle(Vector(57.45, -23.55, 0), Vector(0, 0, 1), 2.8), math.radians(90), math.radians(270)),
    Part.LineSegment(Vector(57.45, -26.35, 0), Vector(64.45, -26.35, 0)),
    Part.ArcOfCircle(Part.Circle(Vector(64.45, -23.55, 0), Vector(0, 0, 1), 2.8), math.radians(-90), math.radians(90)),
], False)
sketch11.addConstraint([
    Sketcher.Constraint("Tangent", 0, 2, 1, 1),
    Sketcher.Constraint("Tangent", 1, 2, 2, 1),
    Sketcher.Constraint("Tangent", 2, 2, 3, 1),
    Sketcher.Constraint("Tangent", 3, 2, 0, 1),
    Sketcher.Constraint("Tangent", 4, 2, 5, 1),
    Sketcher.Constraint("Tangent", 5, 2, 6, 1),
    Sketcher.Constraint("Tangent", 6, 2, 7, 1),
    Sketcher.Constraint("Tangent", 7, 2, 4, 1),
    Sketcher.Constraint("Tangent", 8, 2, 9, 1),
    Sketcher.Constraint("Tangent", 9, 2, 10, 1),
    Sketcher.Constraint("Tangent", 10, 2, 11, 1),
    Sketcher.Constraint("Tangent", 11, 2, 8, 1),
    Sketcher.Constraint("Tangent", 12, 2, 13, 1),
    Sketcher.Constraint("Tangent", 13, 2, 14, 1),
    Sketcher.Constraint("Tangent", 14, 2, 15, 1),
    Sketcher.Constraint("Tangent", 15, 2, 12, 1),
    Sketcher.Constraint("Horizontal", 0),
    Sketcher.Constraint("Horizontal", 2),
    Sketcher.Constraint("Horizontal", 4),
    Sketcher.Constraint("Horizontal", 6),
    Sketcher.Constraint("Horizontal", 8),
    Sketcher.Constraint("Horizontal", 10),
    Sketcher.Constraint("Horizontal", 12),
    Sketcher.Constraint("Horizontal", 14),
    Sketcher.Constraint("Equal", 3, 5),
    Sketcher.Constraint("Equal", 7, 9),
    Sketcher.Constraint("Equal", 11, 13),
    Sketcher.Constraint("Symmetric", 5, 3, 9, 3, -1),
    Sketcher.Constraint("Symmetric", 1, 3, 13, 3, -1),
    Sketcher.Constraint("Horizontal", 3, 3, 5, 3),
    Sketcher.Constraint("Vertical", 3, 3, 15, 3),
    Sketcher.Constraint("Equal", 2, 4),
    Sketcher.Constraint("Radius", 1, 2.8),
    Sketcher.Constraint("DistanceX", 0, 2, 0, 1, 7.0),
    Sketcher.Constraint("DistanceX", 3, 3, 5, 3, 40.1),
    Sketcher.Constraint("DistanceY", 9, 3, 5, 3, 47.1),
    Sketcher.Constraint("DistanceX", -1, 1, 1, 3, 57.45),
    Sketcher.Constraint("DistanceX", 8, 2, 8, 1, 7.699015),
])
pocket9 = doc.addObject("PartDesign::Pocket", "Pocket008")
body.addObject(pocket9)
pocket9.Profile = sketch11
pocket9.Length = 10

sketch12 = doc.addObject("Sketcher::SketchObject", "Sketch011")
body.addObject(sketch12)
sketch12.AttachmentSupport = (doc.XY_Plane, [""])
sketch12.MapMode = "FlatFace"
sketch12.AttachmentOffset = App.Placement(Vector(0, 0, 8), App.Rotation())
sketch12.addGeometry([
    Part.Circle(Vector(130.870792, -372.8, 0), Vector(0, 0, 1), 2.15),
    Part.Circle(Vector(260.870792, -372.8, 0), Vector(0, 0, 1), 2.15),
    Part.Circle(Vector(410.870792, -372.8, 0), Vector(0, 0, 1), 2.15),
    Part.Circle(Vector(494.120907, -257.3, 0), Vector(0, 0, 1), 2.15),
    Part.Circle(Vector(510.343253, -67, 0), Vector(0, 0, 1), 2.15),
    Part.Circle(Vector(364.843253, -21.5, 0), Vector(0, 0, 1), 2.15),
    Part.Circle(Vector(194.843253, -21.5, 0), Vector(0, 0, 1), 2.15),
    Part.Circle(Vector(1.714193, -145, 0), Vector(0, 0, 1), 2.15),
    Part.Circle(Vector(20.062817, -325, 0), Vector(0, 0, 1), 2.15),
], False)
sketch12.addConstraint([
    Sketcher.Constraint("Equal", 0, 1),
    Sketcher.Constraint("Equal", 1, 2),
    Sketcher.Constraint("Equal", 2, 3),
    Sketcher.Constraint("Equal", 3, 4),
    Sketcher.Constraint("Equal", 4, 5),
    Sketcher.Constraint("Equal", 5, 6),
    Sketcher.Constraint("Equal", 6, 7),
    Sketcher.Constraint("Equal", 7, 8),
    Sketcher.Constraint("Horizontal", 0, 3, 1, 3),
    Sketcher.Constraint("Horizontal", 1, 3, 2, 3),
    Sketcher.Constraint("Horizontal", 5, 3, 6, 3),
    Sketcher.Constraint("Diameter", 0, 4.3),
    Sketcher.Constraint("DistanceY", 4, 3, -1, 1, 67.0),
    Sketcher.Constraint("DistanceY", 7, 3, -1, 1, 145.0),
    Sketcher.Constraint("DistanceY", 8, 3, -1, 1, 325.0),
    Sketcher.Constraint("DistanceX", 0, 3, 1, 3, 130.0),
    Sketcher.Constraint("DistanceX", 1, 3, 2, 3, 150.0),
    Sketcher.Constraint("DistanceX", 6, 3, 5, 3, 170.0),
    Sketcher.Constraint("DistanceY", 0, 3, -1, 1, 372.8),
    Sketcher.Constraint("DistanceY", 3, 3, -1, 1, 257.3),
    Sketcher.Constraint("DistanceY", 5, 3, -1, 1, 21.5),
    Sketcher.Constraint("DistanceX", 5, 3, 4, 3, 145.5),
    Sketcher.Constraint("DistanceX", 7, 3, 0, 3, 129.156599),
    Sketcher.Constraint("DistanceX", 2, 3, 4, 3, 99.472461),
    Sketcher.Constraint("DistanceX", -1, 1, 0, 3, 130.870792),
    Sketcher.Constraint("DistanceX", -1, 1, 3, 3, 494.120907),
    Sketcher.Constraint("DistanceX", -1, 1, 8, 3, 20.062817),
])
pocket10 = doc.addObject("PartDesign::Pocket", "Pocket009")
body.addObject(pocket10)
pocket10.Profile = sketch12
pocket10.Length = 30

sketch13 = doc.addObject("Sketcher::SketchObject", "Sketch012")
body.addObject(sketch13)
sketch13.AttachmentSupport = (doc.XY_Plane, [""])
sketch13.MapMode = "FlatFace"
sketch13.AttachmentOffset = App.Placement(Vector(0, 0, 8), App.Rotation())
sketch13.addGeometry([
    Part.Circle(Vector(232, 18, 0), Vector(0, 0, 1), 2.6),
    Part.Circle(Vector(210, 18, 0), Vector(0, 0, 1), 2.6),
    Part.Circle(Vector(210, -407.3, 0), Vector(0, 0, 1), 2.6),
    Part.Circle(Vector(232, -407.3, 0), Vector(0, 0, 1), 2.6),
], False)
sketch13.addConstraint([
    Sketcher.Constraint("Equal", 0, 1),
    Sketcher.Constraint("Equal", 1, 2),
    Sketcher.Constraint("Equal", 2, 3),
    Sketcher.Constraint("Horizontal", 0, 3, 1, 3),
    Sketcher.Constraint("Horizontal", 2, 3, 3, 3),
    Sketcher.Constraint("Vertical", 1, 3, 2, 3),
    Sketcher.Constraint("Vertical", 0, 3, 3, 3),
    Sketcher.Constraint("Diameter", 0, 5.2),
    Sketcher.Constraint("DistanceX", -1, 1, 0, 3, 232.0),
    Sketcher.Constraint("DistanceY", -1, 1, 0, 3, 18.0),
    Sketcher.Constraint("DistanceX", -1, 1, 1, 3, 210.0),
    Sketcher.Constraint("DistanceY", 2, 3, -1, 1, 407.3),
])
pocket11 = doc.addObject("PartDesign::Pocket", "Pocket010")
body.addObject(pocket11)
pocket11.Profile = sketch13
pocket11.Length = 8

sketch14 = doc.addObject("Sketcher::SketchObject", "Sketch013")
body.addObject(sketch14)
sketch14.AttachmentSupport = (doc.XY_Plane, [""])
sketch14.MapMode = "FlatFace"
sketch14.addGeometry([
    Part.Circle(Vector(-43, -47, 0), Vector(0, 0, 1), 2.6),
    Part.Circle(Vector(-43, -27, 0), Vector(0, 0, 1), 2.6),
    Part.Circle(Vector(-43, -347.3, 0), Vector(0, 0, 1), 2.6),
    Part.Circle(Vector(-43, -367.3, 0), Vector(0, 0, 1), 2.6),
], False)
sketch14.addConstraint([
    Sketcher.Constraint("Equal", 0, 1),
    Sketcher.Constraint("Equal", 1, 2),
    Sketcher.Constraint("Equal", 2, 3),
    Sketcher.Constraint("Vertical", 0, 3, 1, 3),
    Sketcher.Constraint("Vertical", 1, 3, 2, 3),
    Sketcher.Constraint("Vertical", 2, 3, 3, 3),
    Sketcher.Constraint("Diameter", 0, 5.2),
    Sketcher.Constraint("DistanceX", 0, 3, -1, 1, 43.0),
    Sketcher.Constraint("DistanceY", 0, 3, -1, 1, 47.0),
    Sketcher.Constraint("DistanceY", 1, 3, -1, 1, 27.0),
    Sketcher.Constraint("DistanceY", 3, 3, 2, 3, 20.0),
    Sketcher.Constraint("DistanceY", 2, 3, -1, 1, 347.3),
])
pocket12 = doc.addObject("PartDesign::Pocket", "Pocket011")
body.addObject(pocket12)
pocket12.Profile = sketch14
pocket12.Length = 11
pocket12.Reversed = True

doc.recompute()
